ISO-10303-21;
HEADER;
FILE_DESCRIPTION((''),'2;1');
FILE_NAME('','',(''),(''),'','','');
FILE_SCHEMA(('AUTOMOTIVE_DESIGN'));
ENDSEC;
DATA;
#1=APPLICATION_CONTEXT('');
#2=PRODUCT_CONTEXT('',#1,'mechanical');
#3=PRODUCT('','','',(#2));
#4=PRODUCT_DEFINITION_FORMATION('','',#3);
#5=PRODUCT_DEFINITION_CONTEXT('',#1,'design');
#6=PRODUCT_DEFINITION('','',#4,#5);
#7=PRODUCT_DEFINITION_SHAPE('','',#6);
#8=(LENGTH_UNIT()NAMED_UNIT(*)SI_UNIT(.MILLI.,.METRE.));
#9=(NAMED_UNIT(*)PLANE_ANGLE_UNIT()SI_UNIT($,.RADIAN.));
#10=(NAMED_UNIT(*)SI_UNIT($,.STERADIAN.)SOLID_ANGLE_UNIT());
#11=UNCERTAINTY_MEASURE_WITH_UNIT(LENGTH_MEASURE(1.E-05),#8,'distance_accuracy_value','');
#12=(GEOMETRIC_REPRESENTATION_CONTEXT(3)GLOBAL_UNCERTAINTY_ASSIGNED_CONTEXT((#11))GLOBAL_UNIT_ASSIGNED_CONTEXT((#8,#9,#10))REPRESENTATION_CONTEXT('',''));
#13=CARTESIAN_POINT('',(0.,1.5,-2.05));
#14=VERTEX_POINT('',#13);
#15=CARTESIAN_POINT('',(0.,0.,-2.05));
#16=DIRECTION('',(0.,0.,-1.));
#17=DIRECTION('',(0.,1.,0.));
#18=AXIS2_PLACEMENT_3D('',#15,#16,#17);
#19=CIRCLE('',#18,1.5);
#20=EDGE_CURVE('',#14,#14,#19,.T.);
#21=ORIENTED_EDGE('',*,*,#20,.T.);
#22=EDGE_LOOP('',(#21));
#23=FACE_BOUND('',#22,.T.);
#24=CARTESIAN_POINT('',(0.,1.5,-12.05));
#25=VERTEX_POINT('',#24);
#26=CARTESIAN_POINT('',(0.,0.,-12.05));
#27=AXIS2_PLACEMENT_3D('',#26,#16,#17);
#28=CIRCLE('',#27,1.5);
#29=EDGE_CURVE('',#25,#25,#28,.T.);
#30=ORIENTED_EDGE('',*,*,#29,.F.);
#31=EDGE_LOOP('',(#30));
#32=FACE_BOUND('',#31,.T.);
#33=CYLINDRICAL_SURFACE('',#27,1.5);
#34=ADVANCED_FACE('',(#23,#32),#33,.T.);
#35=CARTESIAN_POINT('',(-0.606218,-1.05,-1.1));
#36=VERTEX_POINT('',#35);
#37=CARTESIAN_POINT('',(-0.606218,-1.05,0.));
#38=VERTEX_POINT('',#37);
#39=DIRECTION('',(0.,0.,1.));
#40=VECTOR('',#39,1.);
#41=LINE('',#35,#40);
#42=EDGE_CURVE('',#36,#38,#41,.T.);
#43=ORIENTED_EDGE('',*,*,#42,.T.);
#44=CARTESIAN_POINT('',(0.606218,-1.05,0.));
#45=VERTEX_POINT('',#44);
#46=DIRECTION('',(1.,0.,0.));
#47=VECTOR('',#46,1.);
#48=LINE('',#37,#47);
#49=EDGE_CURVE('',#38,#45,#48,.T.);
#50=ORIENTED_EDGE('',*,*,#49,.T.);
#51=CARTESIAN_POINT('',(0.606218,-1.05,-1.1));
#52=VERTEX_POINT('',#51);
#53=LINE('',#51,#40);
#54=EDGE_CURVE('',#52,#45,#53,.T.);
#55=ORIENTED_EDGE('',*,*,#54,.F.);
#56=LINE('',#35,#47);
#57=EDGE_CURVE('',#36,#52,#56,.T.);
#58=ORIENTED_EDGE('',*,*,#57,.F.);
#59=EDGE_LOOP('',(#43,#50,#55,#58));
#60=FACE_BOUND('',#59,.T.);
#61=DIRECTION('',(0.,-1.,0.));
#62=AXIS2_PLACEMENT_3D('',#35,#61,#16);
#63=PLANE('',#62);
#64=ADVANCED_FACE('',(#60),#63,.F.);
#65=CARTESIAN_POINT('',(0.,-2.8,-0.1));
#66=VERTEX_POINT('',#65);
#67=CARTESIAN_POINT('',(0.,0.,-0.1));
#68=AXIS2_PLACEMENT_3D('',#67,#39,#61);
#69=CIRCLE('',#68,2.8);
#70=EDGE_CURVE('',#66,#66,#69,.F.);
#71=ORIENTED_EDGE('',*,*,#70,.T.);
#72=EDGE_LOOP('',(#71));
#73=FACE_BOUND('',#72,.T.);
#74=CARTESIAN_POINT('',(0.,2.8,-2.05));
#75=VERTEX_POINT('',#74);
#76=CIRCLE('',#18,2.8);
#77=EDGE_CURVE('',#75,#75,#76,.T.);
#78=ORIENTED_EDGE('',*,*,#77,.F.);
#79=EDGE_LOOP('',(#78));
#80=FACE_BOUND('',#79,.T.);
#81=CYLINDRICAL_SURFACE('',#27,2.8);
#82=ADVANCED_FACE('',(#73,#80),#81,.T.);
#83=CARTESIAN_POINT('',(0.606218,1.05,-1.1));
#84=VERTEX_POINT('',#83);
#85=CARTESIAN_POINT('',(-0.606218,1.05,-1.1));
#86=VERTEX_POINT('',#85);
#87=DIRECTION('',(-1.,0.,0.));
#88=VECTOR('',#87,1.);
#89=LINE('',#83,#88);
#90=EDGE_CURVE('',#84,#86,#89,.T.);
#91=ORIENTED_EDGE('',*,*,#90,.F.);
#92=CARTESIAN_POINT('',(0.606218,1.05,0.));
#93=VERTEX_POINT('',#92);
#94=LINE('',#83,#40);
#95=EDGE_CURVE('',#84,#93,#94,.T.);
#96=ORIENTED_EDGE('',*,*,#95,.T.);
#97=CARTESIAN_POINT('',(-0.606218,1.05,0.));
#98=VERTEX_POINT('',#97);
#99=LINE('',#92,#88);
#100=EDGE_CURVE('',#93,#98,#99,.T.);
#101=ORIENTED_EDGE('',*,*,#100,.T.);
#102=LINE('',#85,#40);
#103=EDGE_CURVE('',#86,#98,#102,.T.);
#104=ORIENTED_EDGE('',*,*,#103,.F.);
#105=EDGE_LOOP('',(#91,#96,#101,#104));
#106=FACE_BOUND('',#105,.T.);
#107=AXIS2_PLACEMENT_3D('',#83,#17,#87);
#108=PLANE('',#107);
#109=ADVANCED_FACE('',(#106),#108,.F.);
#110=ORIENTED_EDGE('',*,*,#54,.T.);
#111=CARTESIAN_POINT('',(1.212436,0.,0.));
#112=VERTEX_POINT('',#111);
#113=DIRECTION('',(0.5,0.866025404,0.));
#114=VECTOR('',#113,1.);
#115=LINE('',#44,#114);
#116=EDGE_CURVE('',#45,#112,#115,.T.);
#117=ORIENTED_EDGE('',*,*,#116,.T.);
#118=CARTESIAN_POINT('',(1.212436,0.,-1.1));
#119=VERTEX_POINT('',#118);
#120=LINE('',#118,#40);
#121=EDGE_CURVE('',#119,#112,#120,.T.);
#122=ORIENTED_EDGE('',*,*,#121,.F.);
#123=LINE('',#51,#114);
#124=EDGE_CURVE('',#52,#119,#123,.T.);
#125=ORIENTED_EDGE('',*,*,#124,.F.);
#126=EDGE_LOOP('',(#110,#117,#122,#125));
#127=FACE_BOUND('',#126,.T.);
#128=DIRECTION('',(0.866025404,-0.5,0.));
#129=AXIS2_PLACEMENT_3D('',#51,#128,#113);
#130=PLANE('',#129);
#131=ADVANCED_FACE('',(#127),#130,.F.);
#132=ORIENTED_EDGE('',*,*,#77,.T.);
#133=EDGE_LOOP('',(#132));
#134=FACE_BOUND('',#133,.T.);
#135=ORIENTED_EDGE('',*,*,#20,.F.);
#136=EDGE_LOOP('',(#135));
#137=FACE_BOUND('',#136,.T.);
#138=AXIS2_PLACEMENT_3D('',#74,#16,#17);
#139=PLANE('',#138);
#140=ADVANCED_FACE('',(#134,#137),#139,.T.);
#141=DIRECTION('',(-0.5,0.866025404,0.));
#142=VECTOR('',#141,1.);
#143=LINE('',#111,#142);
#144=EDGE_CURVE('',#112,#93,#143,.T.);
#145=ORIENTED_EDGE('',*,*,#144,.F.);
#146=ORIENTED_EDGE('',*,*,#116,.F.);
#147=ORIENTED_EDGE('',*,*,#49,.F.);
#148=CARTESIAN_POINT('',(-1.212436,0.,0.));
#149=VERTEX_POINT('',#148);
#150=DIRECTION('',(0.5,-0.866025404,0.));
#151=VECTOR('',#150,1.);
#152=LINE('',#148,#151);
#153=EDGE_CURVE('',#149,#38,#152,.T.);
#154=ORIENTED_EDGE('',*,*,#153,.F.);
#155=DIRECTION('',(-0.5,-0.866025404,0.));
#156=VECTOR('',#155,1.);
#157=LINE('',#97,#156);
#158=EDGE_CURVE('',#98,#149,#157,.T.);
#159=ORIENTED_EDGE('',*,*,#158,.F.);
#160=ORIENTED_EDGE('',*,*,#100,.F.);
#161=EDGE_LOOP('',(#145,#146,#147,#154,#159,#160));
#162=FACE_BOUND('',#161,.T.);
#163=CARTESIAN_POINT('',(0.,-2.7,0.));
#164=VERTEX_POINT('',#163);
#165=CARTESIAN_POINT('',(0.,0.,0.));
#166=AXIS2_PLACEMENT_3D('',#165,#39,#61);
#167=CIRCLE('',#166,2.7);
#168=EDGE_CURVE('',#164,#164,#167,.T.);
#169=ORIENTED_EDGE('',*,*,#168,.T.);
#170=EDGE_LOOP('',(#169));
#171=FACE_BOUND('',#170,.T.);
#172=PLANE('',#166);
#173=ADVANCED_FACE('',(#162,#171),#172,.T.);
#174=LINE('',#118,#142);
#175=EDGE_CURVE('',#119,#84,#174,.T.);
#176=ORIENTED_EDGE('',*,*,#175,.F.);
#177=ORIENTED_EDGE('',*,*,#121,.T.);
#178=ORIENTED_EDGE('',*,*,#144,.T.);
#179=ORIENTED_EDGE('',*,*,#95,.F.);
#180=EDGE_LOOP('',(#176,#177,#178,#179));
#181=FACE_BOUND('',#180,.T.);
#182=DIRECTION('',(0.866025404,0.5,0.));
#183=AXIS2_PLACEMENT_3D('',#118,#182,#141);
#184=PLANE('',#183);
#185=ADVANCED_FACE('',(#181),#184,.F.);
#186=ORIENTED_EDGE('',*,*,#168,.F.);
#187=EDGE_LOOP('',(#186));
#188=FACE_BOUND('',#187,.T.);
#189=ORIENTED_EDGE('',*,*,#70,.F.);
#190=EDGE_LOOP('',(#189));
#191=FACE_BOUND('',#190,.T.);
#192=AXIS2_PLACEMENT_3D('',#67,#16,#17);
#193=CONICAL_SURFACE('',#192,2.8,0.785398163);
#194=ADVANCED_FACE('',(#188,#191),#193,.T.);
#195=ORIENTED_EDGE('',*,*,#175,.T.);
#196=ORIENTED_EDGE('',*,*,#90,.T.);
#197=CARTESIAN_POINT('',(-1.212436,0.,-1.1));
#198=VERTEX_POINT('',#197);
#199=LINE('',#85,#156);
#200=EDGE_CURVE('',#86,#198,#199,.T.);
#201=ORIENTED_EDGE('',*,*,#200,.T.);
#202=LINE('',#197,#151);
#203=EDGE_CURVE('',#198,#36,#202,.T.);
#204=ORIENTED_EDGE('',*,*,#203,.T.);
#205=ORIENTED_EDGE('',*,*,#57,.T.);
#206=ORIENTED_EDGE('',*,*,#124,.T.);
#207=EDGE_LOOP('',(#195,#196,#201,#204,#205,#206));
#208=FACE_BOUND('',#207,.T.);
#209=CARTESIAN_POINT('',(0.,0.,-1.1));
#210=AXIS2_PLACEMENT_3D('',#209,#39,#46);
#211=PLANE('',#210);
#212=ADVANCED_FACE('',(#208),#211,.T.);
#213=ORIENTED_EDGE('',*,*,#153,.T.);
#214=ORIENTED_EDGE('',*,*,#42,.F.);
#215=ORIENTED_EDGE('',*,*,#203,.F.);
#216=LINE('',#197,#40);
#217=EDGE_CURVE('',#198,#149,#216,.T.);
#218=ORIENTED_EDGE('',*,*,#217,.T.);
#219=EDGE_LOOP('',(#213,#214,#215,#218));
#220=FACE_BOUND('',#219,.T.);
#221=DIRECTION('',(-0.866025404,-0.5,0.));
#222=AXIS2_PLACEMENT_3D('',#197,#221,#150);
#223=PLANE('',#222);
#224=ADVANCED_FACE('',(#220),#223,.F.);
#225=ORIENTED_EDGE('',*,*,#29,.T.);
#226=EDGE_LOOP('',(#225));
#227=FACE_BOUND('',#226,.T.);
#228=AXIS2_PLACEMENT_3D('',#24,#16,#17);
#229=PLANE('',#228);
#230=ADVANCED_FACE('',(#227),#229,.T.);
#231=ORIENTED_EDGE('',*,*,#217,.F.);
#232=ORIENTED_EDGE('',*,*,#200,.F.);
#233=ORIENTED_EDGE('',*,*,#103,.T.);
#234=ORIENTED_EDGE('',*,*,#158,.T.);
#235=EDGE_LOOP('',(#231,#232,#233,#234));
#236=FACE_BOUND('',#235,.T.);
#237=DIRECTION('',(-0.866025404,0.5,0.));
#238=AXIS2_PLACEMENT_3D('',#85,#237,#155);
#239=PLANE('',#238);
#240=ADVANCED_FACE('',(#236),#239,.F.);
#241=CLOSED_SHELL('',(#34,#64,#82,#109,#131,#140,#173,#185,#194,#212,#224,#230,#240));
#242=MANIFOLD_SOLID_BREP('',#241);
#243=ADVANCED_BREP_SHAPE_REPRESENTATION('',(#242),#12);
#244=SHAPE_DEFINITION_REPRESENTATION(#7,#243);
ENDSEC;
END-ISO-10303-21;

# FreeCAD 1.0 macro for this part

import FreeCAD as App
import Part
import Sketcher

V = App.Vector
Q = App.Units.Quantity


def edges_at(feature, points):
    """Names of the edges that pass closest to the given points."""
    edges = feature.Shape.Edges
    near = lambda p: min(range(len(edges)), key=lambda i: edges[i].distToShape(Part.Vertex(*p))[0])
    return sorted({f"Edge{near(p) + 1}" for p in points})

doc = App.newDocument("Part")
body = doc.addObject("PartDesign::Body", "Body")

# Sketch on YZ plane
sketch1 = body.newObject("Sketcher::SketchObject", "Sketch")
sketch1.AttachmentSupport = (doc.getObject("YZ_Plane"), [""])
sketch1.MapMode = "FlatFace"
sketch1.addGeometry(Part.LineSegment(V(2.8, 0, 0), V(0, 0, 0)), False)
sketch1.addGeometry(Part.LineSegment(V(0, 0, 0), V(0, -12.05, 0)), False)
sketch1.addGeometry(Part.LineSegment(V(0, -12.05, 0), V(1.5, -12.05, 0)), False)
sketch1.addGeometry(Part.LineSegment(V(1.5, -12.05, 0), V(1.5, -2.05, 0)), False)
sketch1.addGeometry(Part.LineSegment(V(1.5, -2.05, 0), V(2.8, -2.05, 0)), False)
sketch1.addGeometry(Part.LineSegment(V(2.8, -2.05, 0), V(2.8, 0, 0)), False)
sketch1.addConstraint(Sketcher.Constraint("Coincident", 0, 2, 1, 1))
sketch1.addConstraint(Sketcher.Constraint("Coincident", 1, 2, 2, 1))
sketch1.addConstraint(Sketcher.Constraint("Coincident", 2, 2, 3, 1))
sketch1.addConstraint(Sketcher.Constraint("Coincident", 3, 2, 4, 1))
sketch1.addConstraint(Sketcher.Constraint("Coincident", 4, 2, 5, 1))
sketch1.addConstraint(Sketcher.Constraint("Coincident", 5, 2, 0, 1))
sketch1.addConstraint(Sketcher.Constraint("Horizontal", 0))
sketch1.addConstraint(Sketcher.Constraint("Vertical", 1))
sketch1.addConstraint(Sketcher.Constraint("Horizontal", 2))
sketch1.addConstraint(Sketcher.Constraint("Vertical", 3))
sketch1.addConstraint(Sketcher.Constraint("Horizontal", 4))
sketch1.addConstraint(Sketcher.Constraint("Vertical", 5))
sketch1.addConstraint(Sketcher.Constraint("Coincident", 0, 2, -1, 1))
sketch1.addConstraint(Sketcher.Constraint("DistanceY", 3, 1, 3, 2, Q("10 mm")))
sketch1.addConstraint(Sketcher.Constraint("DistanceX", 0, 2, 0, 1, Q("2.8 mm")))
sketch1.addConstraint(Sketcher.Constraint("DistanceX", 2, 1, 2, 2, Q("1.5 mm")))
sketch1.addConstraint(Sketcher.Constraint("DistanceY", 1, 2, 1, 1, Q("12.05 mm")))
revolution = body.newObject("PartDesign::Revolution", "Revolution")
revolution.Profile = sketch1
revolution.ReferenceAxis = (sketch1, ["V_Axis"])
revolution.Angle = 360

# Sketch on XY plane
sketch2 = body.newObject("Sketcher::SketchObject", "Sketch001")
sketch2.AttachmentSupport = (doc.getObject("XY_Plane"), [""])
sketch2.MapMode = "FlatFace"
sketch2.addGeometry(Part.LineSegment(V(0.606218, 1.05, 0), V(-0.606218, 1.05, 0)), False)
sketch2.addGeometry(Part.LineSegment(V(-0.606218, 1.05, 0), V(-1.212436, 0, 0)), False)
sketch2.addGeometry(Part.LineSegment(V(-1.212436, 0, 0), V(-0.606218, -1.05, 0)), False)
sketch2.addGeometry(Part.LineSegment(V(-0.606218, -1.05, 0), V(0.606218, -1.05, 0)), False)
sketch2.addGeometry(Part.LineSegment(V(0.606218, -1.05, 0), V(1.212436, 0, 0)), False)
sketch2.addGeometry(Part.LineSegment(V(1.212436, 0, 0), V(0.606218, 1.05, 0)), False)
sketch2.addConstraint(Sketcher.Constraint("Coincident", 0, 2, 1, 1))
sketch2.addConstraint(Sketcher.Constraint("Coincident", 1, 2, 2, 1))
sketch2.addConstraint(Sketcher.Constraint("Coincident", 2, 2, 3, 1))
sketch2.addConstraint(Sketcher.Constraint("Coincident", 3, 2, 4, 1))
sketch2.addConstraint(Sketcher.Constraint("Coincident", 4, 2, 5, 1))
sketch2.addConstraint(Sketcher.Constraint("Coincident", 5, 2, 0, 1))
sketch2.addConstraint(Sketcher.Constraint("Horizontal", 0))
sketch2.addConstraint(Sketcher.Constraint("Horizontal", 3))
sketch2.addConstraint(Sketcher.Constraint("Symmetric", 0, 2, 3, 2, -1, 1))
sketch2.addConstraint(Sketcher.Constraint("Symmetric", 1, 2, 4, 2, -1, 1))
sketch2.addConstraint(Sketcher.Constraint("PointOnObject", 1, 2, -1))
sketch2.addConstraint(Sketcher.Constraint("Parallel", 2, 5))
sketch2.addConstraint(Sketcher.Constraint("Vertical", 0, 2, 2, 2))
sketch2.addConstraint(Sketcher.Constraint("Angle", 1, Q("-120 deg")))
sketch2.addConstraint(Sketcher.Constraint("DistanceY", 2, 2, 0, 2, Q("2.1 mm")))
sketch2.addConstraint(Sketcher.Constraint("DistanceX", 0, 2, 0, 1, Q("1.212436 mm")))
pocket1 = body.newObject("PartDesign::Pocket", "Pocket")
pocket1.Profile = sketch2
pocket1.Length = 1.1
doc.recompute()

chamfer = body.newObject("PartDesign::Chamfer", "Chamfer")
chamfer.Base = (pocket1, edges_at(pocket1, [(0, -2.8, 0)]))
chamfer.Size = 0.1

doc.recompute()
